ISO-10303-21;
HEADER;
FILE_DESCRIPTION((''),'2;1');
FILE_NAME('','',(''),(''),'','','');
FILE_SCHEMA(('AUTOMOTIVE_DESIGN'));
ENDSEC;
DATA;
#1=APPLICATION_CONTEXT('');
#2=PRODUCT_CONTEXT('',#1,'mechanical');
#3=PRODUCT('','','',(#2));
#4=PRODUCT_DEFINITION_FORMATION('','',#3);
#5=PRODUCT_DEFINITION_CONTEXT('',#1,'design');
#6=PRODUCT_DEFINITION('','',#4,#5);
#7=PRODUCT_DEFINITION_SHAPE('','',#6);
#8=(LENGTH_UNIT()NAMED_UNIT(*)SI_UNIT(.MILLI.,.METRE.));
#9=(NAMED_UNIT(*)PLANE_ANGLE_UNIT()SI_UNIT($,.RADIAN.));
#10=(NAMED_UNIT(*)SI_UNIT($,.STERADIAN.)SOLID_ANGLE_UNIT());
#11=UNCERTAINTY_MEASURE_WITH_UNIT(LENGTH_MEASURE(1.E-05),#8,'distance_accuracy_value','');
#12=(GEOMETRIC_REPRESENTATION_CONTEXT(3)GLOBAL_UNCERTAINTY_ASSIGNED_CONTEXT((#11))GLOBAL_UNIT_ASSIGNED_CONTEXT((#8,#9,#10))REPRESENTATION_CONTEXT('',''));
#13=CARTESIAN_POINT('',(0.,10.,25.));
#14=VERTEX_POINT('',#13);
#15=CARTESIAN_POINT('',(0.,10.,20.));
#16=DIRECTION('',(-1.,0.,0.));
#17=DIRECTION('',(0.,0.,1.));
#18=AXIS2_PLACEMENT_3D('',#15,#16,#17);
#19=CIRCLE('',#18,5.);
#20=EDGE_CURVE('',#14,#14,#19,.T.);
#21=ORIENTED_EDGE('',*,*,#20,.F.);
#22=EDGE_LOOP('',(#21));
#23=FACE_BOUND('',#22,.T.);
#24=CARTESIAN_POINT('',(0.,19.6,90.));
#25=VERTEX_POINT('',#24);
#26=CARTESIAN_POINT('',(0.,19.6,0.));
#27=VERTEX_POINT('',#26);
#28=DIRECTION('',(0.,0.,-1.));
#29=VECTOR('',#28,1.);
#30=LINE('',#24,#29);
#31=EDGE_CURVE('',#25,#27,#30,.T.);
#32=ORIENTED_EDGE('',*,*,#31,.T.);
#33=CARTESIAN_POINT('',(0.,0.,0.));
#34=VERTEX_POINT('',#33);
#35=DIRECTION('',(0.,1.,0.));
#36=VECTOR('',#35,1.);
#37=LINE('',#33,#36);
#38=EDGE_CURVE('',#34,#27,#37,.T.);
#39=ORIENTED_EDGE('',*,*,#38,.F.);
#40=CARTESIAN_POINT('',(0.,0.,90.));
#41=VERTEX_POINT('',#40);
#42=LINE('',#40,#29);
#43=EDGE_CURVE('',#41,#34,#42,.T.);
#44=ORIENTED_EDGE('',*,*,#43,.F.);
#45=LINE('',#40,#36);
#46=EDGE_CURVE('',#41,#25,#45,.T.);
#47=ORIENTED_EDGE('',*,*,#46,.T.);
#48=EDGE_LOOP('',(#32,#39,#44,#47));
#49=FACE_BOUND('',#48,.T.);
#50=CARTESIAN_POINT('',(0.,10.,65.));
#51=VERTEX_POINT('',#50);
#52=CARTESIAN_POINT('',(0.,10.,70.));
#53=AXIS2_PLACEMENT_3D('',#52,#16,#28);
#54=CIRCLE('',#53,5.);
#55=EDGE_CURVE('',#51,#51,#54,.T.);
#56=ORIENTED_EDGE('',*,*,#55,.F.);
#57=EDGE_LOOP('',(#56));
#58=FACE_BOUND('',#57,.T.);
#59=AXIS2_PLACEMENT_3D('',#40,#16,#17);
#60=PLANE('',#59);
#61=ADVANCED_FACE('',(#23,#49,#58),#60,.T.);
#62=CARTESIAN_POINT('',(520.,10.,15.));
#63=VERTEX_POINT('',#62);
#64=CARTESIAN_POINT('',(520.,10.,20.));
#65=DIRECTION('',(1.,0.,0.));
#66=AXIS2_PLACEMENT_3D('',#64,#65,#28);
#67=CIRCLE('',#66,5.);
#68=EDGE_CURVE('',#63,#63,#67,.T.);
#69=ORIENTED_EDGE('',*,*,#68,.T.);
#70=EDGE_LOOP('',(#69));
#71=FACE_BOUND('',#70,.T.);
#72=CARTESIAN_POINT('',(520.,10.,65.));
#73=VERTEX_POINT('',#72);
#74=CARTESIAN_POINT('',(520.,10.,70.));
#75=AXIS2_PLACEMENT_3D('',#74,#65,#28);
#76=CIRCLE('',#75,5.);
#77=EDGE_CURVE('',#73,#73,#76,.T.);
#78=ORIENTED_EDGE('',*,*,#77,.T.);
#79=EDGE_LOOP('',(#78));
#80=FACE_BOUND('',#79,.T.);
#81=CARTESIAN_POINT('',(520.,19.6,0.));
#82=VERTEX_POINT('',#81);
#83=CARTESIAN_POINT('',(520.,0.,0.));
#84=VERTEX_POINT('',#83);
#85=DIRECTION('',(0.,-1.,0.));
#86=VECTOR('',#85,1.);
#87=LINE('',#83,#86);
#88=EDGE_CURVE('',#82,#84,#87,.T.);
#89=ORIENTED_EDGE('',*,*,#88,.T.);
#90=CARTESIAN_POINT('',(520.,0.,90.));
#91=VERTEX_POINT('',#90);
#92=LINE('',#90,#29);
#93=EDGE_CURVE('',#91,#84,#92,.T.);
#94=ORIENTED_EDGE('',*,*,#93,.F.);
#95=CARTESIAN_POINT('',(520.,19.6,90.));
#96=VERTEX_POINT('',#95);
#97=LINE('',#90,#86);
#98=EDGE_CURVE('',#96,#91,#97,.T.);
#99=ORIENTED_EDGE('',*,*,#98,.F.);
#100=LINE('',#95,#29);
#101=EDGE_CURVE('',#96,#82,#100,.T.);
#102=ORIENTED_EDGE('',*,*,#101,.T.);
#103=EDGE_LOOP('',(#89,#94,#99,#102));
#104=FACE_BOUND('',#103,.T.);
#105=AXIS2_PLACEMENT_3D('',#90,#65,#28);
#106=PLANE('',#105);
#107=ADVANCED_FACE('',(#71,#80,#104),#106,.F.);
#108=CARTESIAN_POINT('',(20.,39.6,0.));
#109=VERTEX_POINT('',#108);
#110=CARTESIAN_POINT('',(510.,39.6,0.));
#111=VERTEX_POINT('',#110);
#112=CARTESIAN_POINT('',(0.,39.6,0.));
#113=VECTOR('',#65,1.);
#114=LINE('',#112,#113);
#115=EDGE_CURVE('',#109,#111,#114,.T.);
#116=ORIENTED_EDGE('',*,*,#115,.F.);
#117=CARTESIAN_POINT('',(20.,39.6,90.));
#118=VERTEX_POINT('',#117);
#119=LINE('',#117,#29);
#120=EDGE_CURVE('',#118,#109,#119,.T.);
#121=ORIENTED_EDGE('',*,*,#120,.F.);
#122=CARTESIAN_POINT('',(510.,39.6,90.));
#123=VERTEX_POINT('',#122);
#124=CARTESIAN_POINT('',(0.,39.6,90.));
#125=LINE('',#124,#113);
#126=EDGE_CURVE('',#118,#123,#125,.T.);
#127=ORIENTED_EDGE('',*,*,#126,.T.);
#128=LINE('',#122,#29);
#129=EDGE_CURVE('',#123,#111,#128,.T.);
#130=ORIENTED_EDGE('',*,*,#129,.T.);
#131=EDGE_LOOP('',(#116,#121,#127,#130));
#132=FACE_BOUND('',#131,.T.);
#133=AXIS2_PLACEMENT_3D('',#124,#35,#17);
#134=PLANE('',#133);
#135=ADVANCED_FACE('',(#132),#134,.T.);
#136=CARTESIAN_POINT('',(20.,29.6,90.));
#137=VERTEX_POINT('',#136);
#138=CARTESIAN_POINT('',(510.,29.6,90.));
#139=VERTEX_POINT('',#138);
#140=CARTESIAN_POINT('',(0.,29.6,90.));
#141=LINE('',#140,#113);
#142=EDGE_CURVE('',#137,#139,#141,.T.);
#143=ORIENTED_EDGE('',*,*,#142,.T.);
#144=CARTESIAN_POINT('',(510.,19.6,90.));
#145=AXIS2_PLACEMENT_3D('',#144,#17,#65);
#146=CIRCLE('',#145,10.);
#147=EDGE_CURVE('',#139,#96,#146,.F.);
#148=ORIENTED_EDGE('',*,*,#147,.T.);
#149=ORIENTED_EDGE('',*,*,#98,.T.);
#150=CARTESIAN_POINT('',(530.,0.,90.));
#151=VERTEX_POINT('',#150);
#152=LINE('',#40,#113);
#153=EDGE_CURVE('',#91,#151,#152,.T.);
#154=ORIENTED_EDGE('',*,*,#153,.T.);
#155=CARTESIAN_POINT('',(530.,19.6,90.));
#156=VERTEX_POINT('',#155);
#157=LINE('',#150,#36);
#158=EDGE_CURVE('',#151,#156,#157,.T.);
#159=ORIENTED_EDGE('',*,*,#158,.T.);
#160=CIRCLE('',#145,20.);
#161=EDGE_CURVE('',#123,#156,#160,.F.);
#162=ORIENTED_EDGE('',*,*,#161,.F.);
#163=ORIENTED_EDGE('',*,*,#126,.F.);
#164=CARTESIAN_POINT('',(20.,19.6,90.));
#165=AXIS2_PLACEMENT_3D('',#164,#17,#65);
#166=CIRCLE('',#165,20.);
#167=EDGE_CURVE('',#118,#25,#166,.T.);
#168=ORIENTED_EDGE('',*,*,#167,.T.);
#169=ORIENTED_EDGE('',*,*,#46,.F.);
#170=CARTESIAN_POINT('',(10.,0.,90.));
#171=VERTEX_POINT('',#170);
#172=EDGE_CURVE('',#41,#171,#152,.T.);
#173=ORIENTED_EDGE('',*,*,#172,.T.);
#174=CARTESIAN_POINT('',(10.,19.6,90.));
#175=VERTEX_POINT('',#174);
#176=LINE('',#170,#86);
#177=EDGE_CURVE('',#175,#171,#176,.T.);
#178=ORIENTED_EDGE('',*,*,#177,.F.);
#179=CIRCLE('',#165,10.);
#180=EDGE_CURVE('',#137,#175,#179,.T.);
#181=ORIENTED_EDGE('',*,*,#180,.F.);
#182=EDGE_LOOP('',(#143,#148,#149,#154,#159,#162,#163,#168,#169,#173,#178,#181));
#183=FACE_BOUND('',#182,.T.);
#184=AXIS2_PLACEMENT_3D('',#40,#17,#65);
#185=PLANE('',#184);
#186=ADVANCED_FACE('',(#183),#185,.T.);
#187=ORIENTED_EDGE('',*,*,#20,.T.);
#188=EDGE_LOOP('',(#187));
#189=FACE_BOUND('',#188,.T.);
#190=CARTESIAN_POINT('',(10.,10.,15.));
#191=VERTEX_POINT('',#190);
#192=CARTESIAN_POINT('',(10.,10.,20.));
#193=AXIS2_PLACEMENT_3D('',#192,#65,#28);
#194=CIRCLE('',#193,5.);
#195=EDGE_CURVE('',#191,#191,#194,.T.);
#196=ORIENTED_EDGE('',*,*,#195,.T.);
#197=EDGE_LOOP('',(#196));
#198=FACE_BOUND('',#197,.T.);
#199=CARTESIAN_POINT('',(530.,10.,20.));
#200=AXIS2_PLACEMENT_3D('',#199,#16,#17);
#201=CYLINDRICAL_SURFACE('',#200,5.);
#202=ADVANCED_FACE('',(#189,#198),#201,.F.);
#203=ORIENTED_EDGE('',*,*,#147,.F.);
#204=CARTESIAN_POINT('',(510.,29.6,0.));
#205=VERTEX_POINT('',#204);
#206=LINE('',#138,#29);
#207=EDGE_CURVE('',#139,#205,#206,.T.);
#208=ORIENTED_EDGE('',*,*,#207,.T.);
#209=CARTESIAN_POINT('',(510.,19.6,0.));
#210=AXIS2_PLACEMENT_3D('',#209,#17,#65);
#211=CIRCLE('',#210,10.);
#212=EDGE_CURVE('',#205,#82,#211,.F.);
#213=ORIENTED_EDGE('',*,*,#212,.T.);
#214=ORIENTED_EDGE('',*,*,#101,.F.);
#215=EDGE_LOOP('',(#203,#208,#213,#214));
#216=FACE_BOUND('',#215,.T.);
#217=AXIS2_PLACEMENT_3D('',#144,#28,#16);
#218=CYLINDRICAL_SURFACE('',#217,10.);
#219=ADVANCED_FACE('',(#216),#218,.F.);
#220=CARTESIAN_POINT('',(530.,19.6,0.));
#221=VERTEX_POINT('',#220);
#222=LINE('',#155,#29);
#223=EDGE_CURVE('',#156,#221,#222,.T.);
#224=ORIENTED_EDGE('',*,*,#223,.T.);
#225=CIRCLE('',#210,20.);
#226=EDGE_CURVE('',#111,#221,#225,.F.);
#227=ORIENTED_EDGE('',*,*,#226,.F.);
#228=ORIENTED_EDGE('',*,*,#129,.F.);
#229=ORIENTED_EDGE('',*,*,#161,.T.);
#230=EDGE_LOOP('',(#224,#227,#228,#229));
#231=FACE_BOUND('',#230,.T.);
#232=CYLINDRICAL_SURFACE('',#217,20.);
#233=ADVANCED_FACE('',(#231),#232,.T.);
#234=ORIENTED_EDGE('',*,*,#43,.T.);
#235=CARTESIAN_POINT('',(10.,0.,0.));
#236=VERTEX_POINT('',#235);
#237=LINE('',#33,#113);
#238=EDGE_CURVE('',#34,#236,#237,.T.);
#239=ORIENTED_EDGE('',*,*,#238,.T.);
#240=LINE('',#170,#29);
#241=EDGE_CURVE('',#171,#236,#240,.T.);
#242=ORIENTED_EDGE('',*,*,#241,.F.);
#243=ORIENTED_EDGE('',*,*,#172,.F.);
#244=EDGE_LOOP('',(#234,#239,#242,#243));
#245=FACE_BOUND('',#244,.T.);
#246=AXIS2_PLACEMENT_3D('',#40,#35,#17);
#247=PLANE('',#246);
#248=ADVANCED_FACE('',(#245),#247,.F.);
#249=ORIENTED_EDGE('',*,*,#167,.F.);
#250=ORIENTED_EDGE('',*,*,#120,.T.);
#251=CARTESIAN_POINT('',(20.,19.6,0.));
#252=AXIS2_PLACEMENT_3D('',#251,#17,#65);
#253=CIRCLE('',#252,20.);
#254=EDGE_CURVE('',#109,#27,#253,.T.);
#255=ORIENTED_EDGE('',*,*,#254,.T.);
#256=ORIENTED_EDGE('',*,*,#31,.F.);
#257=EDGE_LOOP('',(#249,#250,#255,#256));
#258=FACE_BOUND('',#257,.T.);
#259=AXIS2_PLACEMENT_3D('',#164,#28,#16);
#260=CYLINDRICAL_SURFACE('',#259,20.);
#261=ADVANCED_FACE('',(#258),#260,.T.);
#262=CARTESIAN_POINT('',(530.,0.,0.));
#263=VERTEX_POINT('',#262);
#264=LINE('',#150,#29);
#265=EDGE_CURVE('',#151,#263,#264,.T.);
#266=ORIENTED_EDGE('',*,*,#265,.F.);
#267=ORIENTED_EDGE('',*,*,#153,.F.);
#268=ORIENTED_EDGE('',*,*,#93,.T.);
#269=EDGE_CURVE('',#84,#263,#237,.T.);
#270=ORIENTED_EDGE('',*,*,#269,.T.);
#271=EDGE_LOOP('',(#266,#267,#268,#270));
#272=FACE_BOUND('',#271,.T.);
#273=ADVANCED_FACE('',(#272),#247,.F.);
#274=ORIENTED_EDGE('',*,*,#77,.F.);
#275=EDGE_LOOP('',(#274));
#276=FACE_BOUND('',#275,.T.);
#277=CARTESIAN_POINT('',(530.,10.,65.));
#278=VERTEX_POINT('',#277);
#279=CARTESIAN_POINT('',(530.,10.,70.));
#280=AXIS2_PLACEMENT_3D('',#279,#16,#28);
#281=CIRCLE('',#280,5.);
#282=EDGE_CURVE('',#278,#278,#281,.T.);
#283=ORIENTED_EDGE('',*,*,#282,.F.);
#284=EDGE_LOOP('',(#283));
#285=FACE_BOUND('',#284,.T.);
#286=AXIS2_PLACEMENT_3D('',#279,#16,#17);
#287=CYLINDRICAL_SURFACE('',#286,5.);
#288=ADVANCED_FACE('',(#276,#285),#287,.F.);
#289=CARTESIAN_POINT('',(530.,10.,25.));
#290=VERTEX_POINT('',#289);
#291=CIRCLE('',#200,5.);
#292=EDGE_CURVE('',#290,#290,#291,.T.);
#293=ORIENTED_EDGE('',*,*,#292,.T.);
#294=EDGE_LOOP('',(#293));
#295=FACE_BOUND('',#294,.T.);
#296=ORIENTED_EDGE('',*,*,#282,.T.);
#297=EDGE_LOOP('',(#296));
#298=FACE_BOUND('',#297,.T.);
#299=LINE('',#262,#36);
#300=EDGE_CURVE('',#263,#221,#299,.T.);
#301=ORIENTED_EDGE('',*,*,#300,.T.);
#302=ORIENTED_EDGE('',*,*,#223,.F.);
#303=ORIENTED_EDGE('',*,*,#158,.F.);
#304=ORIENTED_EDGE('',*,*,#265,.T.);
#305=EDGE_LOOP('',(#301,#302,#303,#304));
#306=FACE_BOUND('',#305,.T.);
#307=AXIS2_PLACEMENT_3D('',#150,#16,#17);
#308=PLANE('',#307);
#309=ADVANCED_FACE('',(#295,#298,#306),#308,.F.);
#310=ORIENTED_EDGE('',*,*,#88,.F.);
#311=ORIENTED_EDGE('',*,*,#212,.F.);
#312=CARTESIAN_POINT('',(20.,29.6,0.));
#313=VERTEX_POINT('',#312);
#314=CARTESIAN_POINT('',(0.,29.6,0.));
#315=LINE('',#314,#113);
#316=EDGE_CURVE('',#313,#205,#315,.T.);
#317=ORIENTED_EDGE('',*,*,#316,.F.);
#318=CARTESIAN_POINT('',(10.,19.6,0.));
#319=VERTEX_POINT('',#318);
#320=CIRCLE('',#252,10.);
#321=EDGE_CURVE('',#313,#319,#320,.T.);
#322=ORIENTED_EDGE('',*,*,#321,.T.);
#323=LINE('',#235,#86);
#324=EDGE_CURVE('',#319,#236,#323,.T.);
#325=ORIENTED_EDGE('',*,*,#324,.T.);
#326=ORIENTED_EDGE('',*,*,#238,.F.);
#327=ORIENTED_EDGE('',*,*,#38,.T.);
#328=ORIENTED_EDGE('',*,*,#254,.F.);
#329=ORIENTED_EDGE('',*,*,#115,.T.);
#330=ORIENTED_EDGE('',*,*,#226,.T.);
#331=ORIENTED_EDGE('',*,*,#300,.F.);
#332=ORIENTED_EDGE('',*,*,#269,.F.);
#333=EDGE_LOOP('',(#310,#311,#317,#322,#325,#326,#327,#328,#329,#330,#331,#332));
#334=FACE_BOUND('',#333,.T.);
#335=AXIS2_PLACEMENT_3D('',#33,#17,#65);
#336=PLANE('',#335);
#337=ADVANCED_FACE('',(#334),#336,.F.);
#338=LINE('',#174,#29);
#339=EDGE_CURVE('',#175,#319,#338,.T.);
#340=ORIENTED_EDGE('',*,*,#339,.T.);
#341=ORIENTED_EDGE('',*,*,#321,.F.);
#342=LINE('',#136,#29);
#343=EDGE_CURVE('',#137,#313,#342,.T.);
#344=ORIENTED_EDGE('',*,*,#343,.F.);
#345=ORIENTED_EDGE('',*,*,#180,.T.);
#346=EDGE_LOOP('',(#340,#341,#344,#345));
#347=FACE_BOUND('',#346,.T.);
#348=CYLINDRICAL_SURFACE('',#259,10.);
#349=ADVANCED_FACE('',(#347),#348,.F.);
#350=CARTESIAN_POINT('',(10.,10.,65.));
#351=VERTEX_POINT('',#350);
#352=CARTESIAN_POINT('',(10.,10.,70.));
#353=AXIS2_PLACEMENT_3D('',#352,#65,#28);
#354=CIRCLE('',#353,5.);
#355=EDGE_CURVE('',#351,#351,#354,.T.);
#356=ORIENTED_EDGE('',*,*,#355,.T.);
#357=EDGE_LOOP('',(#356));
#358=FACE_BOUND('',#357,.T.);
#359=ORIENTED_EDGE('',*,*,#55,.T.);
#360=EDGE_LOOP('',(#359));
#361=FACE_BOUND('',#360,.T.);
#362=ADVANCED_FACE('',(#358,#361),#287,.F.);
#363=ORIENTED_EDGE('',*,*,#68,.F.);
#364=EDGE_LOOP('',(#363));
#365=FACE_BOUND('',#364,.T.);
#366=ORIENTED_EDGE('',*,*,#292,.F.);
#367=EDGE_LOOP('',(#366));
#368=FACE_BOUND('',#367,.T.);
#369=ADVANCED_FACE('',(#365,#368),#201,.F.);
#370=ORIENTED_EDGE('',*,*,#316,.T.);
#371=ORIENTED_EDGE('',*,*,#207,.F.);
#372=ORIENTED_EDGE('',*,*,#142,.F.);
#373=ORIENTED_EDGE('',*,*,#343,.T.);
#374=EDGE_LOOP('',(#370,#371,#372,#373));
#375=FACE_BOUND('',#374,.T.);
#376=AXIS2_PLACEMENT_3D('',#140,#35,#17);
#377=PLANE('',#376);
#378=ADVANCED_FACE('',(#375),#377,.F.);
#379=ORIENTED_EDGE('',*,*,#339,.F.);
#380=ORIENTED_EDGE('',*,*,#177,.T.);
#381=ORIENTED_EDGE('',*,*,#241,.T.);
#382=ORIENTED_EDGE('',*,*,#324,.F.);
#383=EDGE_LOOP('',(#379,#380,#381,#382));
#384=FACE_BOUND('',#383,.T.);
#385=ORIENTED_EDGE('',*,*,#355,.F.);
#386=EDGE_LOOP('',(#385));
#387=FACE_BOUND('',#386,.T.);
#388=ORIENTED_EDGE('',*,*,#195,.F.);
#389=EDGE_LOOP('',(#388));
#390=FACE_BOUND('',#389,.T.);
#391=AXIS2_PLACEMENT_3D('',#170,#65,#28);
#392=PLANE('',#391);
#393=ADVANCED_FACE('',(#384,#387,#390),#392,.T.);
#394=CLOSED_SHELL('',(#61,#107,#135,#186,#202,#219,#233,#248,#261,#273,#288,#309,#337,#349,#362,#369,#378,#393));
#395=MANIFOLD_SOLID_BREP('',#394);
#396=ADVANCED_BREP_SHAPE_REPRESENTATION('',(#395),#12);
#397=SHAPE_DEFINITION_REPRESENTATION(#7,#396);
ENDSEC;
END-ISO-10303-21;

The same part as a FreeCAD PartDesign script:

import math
import FreeCAD as App
import Part
import Sketcher
from FreeCAD import Vector
Q = App.Units.Quantity

doc = App.newDocument("Part")
body = doc.addObject("PartDesign::Body", "Body")

sketch1 = body.newObject("Sketcher::SketchObject", "Sketch")
sketch1.AttachmentSupport = (doc.getObject("XY_Plane"), [""])
sketch1.MapMode = "FlatFace"
sketch1.addGeometry(Part.LineSegment(Vector(20, 30, 0), Vector(510, 30, 0)), False)
sketch1.addGeometry(Part.ArcOfCircle(Part.Circle(Vector(510, 20, 0), Vector(0, 0, 1), 10), math.radians(0), math.radians(90)), False)
sketch1.addGeometry(Part.LineSegment(Vector(520, 20, 0), Vector(520, 0, 0)), False)
sketch1.addGeometry(Part.LineSegment(Vector(520, 0, 0), Vector(530, 0, 0)), False)
sketch1.addGeometry(Part.LineSegment(Vector(530, 0, 0), Vector(530, 20, 0)), False)
sketch1.addGeometry(Part.ArcOfCircle(Part.Circle(Vector(510, 20, 0), Vector(0, 0, 1), 20), math.radians(0), math.radians(90)), False)
sketch1.addGeometry(Part.LineSegment(Vector(510, 40, 0), Vector(20, 40, 0)), False)
sketch1.addGeometry(Part.ArcOfCircle(Part.Circle(Vector(20, 20, 0), Vector(0, 0, 1), 20), math.radians(90), math.radians(180)), False)
sketch1.addGeometry(Part.LineSegment(Vector(0, 20, 0), Vector(0, 0, 0)), False)
sketch1.addGeometry(Part.LineSegment(Vector(0, 0, 0), Vector(10, 0, 0)), False)
sketch1.addGeometry(Part.LineSegment(Vector(10, 0, 0), Vector(10, 20, 0)), False)
sketch1.addGeometry(Part.ArcOfCircle(Part.Circle(Vector(20, 20, 0), Vector(0, 0, 1), 10), math.radians(90), math.radians(180)), False)
sketch1.addConstraint(Sketcher.Constraint("Tangent", 0, 2, 1, 2))
sketch1.addConstraint(Sketcher.Constraint("Tangent", 1, 1, 2, 1))
sketch1.addConstraint(Sketcher.Constraint("Coincident", 2, 2, 3, 1))
sketch1.addConstraint(Sketcher.Constraint("Coincident", 3, 2, 4, 1))
sketch1.addConstraint(Sketcher.Constraint("Tangent", 4, 2, 5, 1))
sketch1.addConstraint(Sketcher.Constraint("Tangent", 5, 2, 6, 1))
sketch1.addConstraint(Sketcher.Constraint("Tangent", 6, 2, 7, 1))
sketch1.addConstraint(Sketcher.Constraint("Tangent", 7, 2, 8, 1))
sketch1.addConstraint(Sketcher.Constraint("Coincident", 8, 2, 9, 1))
sketch1.addConstraint(Sketcher.Constraint("Coincident", 9, 2, 10, 1))
sketch1.addConstraint(Sketcher.Constraint("Tangent", 10, 2, 11, 2))
sketch1.addConstraint(Sketcher.Constraint("Tangent", 11, 1, 0, 1))
sketch1.addConstraint(Sketcher.Constraint("Horizontal", 0))
sketch1.addConstraint(Sketcher.Constraint("Vertical", 2))
sketch1.addConstraint(Sketcher.Constraint("Horizontal", 3))
sketch1.addConstraint(Sketcher.Constraint("Vertical", 4))
sketch1.addConstraint(Sketcher.Constraint("Horizontal", 6))
sketch1.addConstraint(Sketcher.Constraint("Vertical", 8))
sketch1.addConstraint(Sketcher.Constraint("Horizontal", 9))
sketch1.addConstraint(Sketcher.Constraint("Vertical", 10))
sketch1.addConstraint(Sketcher.Constraint("Coincident", 8, 2, -1, 1))
sketch1.addConstraint(Sketcher.Constraint("Coincident", 5, 3, 1, 3))
sketch1.addConstraint(Sketcher.Constraint("Coincident", 11, 3, 7, 3))
sketch1.addConstraint(Sketcher.Constraint("Equal", 5, 7))
sketch1.addConstraint(Sketcher.Constraint("PointOnObject", 2, 2, -1))
sketch1.addConstraint(Sketcher.Constraint("Radius", 1, Q("10 mm")))
sketch1.addConstraint(Sketcher.Constraint("Radius", 5, Q("20 mm")))
sketch1.addConstraint(Sketcher.Constraint("DistanceX", 0, 1, 0, 2, Q("490 mm")))
sketch1.addConstraint(Sketcher.Constraint("DistanceY", 2, 2, 2, 1, Q("19.6 mm")))
pad1 = body.newObject("PartDesign::Pad", "Pad")
pad1.Profile = sketch1
pad1.Length = 90

sketch2 = body.newObject("Sketcher::SketchObject", "Sketch001")
sketch2.AttachmentSupport = (doc.getObject("YZ_Plane"), [""])
sketch2.MapMode = "FlatFace"
sketch2.addGeometry(Part.Circle(Vector(10, 20, 0), Vector(0, 0, 1), 5), False)
sketch2.addGeometry(Part.Circle(Vector(10, 70, 0), Vector(0, 0, 1), 5), False)
sketch2.addConstraint(Sketcher.Constraint("Equal", 0, 1))
sketch2.addConstraint(Sketcher.Constraint("Vertical", 0, 3, 1, 3))
sketch2.addConstraint(Sketcher.Constraint("Diameter", 0, Q("10 mm")))
sketch2.addConstraint(Sketcher.Constraint("DistanceX", -1, 1, 0, 3, Q("10 mm")))
sketch2.addConstraint(Sketcher.Constraint("DistanceY", -1, 1, 0, 3, Q("20 mm")))
sketch2.addConstraint(Sketcher.Constraint("DistanceY", -1, 1, 1, 3, Q("70 mm")))
pocket1 = body.newObject("PartDesign::Pocket", "Pocket")
pocket1.Profile = sketch2
pocket1.Type = "ThroughAll"
pocket1.Reversed = True

doc.recompute()
